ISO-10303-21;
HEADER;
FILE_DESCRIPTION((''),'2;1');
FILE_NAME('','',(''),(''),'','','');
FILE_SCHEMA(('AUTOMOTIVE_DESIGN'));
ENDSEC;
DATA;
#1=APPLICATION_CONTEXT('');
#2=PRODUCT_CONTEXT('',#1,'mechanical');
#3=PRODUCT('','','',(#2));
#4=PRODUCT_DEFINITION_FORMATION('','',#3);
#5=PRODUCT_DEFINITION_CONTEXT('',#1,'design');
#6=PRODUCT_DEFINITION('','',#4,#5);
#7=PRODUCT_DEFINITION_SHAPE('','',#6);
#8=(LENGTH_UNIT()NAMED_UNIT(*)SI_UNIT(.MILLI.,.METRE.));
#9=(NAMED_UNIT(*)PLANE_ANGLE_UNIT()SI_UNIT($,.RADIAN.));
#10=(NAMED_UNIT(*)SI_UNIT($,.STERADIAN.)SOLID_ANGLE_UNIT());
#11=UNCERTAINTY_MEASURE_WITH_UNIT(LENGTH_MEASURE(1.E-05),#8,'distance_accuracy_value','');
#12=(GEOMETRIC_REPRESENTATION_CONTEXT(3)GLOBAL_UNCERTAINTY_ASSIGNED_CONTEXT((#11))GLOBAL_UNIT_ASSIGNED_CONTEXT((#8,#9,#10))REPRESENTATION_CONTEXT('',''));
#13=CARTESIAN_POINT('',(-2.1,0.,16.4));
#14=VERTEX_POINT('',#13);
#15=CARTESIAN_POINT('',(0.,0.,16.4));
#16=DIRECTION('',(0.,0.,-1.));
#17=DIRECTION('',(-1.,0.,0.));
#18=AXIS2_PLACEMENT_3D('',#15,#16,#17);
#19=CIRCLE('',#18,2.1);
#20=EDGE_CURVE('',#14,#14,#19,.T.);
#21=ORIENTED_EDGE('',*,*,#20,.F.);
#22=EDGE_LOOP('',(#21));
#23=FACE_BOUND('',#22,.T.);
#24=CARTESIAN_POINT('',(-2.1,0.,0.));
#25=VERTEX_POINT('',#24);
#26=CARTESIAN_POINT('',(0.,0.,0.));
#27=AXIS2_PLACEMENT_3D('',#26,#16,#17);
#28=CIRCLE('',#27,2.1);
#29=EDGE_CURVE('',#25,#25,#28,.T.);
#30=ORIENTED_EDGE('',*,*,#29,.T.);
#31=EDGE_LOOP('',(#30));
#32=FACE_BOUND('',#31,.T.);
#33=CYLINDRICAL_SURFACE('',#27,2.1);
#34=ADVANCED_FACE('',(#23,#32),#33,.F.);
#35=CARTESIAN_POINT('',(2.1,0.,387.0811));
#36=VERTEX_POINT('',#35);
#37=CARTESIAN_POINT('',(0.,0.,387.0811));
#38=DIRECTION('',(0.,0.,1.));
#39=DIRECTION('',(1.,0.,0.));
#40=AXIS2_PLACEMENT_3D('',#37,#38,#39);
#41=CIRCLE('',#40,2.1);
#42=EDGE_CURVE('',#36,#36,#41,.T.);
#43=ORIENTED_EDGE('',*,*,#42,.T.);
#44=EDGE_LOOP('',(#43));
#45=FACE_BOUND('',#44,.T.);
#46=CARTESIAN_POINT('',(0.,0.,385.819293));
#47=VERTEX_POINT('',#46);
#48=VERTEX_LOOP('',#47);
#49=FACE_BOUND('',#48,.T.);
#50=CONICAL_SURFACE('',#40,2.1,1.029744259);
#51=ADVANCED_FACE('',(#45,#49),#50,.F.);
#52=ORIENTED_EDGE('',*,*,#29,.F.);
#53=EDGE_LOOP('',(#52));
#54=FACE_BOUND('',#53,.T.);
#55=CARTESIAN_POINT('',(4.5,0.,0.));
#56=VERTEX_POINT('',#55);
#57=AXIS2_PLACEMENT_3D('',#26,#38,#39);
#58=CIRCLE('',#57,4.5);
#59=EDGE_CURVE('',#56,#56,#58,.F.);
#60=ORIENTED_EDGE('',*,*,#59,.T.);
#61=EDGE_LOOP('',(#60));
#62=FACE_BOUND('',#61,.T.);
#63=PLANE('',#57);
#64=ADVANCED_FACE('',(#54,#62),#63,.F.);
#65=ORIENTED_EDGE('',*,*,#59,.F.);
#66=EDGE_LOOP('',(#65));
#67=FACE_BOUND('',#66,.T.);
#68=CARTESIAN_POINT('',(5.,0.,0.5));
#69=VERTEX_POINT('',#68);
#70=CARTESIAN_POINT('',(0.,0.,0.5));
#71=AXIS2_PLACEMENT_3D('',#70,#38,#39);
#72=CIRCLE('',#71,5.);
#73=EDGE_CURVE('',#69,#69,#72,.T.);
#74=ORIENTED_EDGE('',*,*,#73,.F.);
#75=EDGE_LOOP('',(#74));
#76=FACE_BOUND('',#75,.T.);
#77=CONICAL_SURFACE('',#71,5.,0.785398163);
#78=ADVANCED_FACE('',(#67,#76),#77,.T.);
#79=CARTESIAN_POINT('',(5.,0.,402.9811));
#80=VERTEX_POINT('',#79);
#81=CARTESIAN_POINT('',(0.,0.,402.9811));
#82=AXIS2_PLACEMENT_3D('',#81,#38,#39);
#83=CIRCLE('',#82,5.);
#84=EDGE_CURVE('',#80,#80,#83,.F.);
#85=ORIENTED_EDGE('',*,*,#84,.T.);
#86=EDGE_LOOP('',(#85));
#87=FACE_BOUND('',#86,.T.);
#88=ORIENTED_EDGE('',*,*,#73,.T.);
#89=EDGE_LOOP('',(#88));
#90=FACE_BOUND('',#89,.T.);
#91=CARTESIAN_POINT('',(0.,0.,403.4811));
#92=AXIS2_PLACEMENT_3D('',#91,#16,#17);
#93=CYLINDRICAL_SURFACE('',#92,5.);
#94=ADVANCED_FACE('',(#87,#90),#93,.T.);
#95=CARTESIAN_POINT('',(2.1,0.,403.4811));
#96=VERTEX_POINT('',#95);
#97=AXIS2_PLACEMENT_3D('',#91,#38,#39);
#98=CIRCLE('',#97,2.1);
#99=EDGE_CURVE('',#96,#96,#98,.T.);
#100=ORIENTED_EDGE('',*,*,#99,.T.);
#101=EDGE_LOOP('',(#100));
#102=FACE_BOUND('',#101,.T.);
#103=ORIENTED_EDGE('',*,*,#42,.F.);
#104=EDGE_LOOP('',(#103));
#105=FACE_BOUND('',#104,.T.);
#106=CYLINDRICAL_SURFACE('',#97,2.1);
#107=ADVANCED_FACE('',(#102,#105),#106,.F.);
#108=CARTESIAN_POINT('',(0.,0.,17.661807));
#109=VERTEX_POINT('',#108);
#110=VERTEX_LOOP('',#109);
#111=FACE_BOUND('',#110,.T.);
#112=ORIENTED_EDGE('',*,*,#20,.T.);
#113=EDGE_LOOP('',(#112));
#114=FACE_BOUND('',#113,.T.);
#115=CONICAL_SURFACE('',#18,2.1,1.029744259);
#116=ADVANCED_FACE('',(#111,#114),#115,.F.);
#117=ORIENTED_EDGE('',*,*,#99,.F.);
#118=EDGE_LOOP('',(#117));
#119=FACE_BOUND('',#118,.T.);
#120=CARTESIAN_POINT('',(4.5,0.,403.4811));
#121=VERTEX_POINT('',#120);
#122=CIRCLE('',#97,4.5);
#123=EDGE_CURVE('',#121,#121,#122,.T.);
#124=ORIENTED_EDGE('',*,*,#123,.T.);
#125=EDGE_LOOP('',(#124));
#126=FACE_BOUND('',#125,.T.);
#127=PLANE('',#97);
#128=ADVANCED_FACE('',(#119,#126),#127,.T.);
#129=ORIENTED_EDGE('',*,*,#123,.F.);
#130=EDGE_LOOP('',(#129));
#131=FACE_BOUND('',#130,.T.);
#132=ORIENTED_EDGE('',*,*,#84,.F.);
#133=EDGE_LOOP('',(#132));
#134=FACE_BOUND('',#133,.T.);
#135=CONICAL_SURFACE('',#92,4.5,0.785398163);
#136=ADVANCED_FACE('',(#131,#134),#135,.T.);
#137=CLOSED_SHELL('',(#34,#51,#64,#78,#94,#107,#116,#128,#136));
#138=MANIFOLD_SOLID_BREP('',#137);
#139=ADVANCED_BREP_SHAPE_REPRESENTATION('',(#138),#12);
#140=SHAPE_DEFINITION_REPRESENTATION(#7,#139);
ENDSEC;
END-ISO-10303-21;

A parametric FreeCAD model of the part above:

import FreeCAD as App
import Part
import Sketcher
Q = App.Units.Quantity


def edges_at(feature, points):
    """Names of the edges that pass closest to the given points."""
    edges = feature.Shape.Edges
    near = lambda p: min(range(len(edges)), key=lambda i: edges[i].distToShape(Part.Vertex(*p))[0])
    return sorted({f"Edge{near(p) + 1}" for p in points})

doc = App.newDocument("Part")
body = doc.addObject("PartDesign::Body", "Body")

# Sketch on XY plane
sketch1 = body.newObject("Sketcher::SketchObject", "Sketch")
sketch1.AttachmentSupport = (doc.getObject("XY_Plane"), [""])
sketch1.MapMode = "FlatFace"
sketch1.addGeometry(Part.Circle(App.Vector(0, 0, 0), App.Vector(0, 0, 1), 5), False)
sketch1.addConstraint([
    Sketcher.Constraint("Coincident", 0, 3, -1, 1),
    Sketcher.Constraint("Diameter", 0, Q("10 mm")),
])
pad1 = body.newObject("PartDesign::Pad", "Pad")
pad1.Profile = sketch1
pad1.Length = 403.4811
doc.recompute()

chamfer = body.newObject("PartDesign::Chamfer", "Chamfer")
chamfer.Base = (pad1, edges_at(pad1, [(-5, 0, 0), (-5, 0, 403.481)]))
chamfer.Size = 0.5

# Sketch on XY plane
sketch2 = body.newObject("Sketcher::SketchObject", "Sketch001")
sketch2.AttachmentSupport = (doc.getObject("XY_Plane"), [""])
sketch2.MapMode = "FlatFace"
sketch2.AttachmentOffset = App.Placement(App.Vector(0, 0, 403.4811), App.Rotation())
sketch2.addGeometry(Part.Circle(App.Vector(0, 0, 0), App.Vector(0, 0, 1), 2.1), False)
sketch2.addConstraint([
    Sketcher.Constraint("Coincident", 0, 3, -1, 1),
    Sketcher.Constraint("Diameter", 0, Q("4.2 mm")),
])
doc.recompute()
hole = body.newObject("PartDesign::Hole", "Hole")
hole.Profile = sketch2
hole.ThreadType = "None"
hole.Diameter = 4.2
hole.DepthType = "Dimension"
hole.Depth = 16.4
hole.DrillPoint = "Angled"
hole.DrillPointAngle = 118

# Sketch on XY plane
sketch3 = body.newObject("Sketcher::SketchObject", "Sketch002")
sketch3.AttachmentSupport = (doc.getObject("XY_Plane"), [""])
sketch3.MapMode = "FlatFace"
sketch3.addGeometry(Part.Circle(App.Vector(0, 0, 0), App.Vector(0, 0, 1), 2.1), False)
sketch3.addConstraint([
    Sketcher.Constraint("Coincident", 0, 3, -1, 1),
    Sketcher.Constraint("Diameter", 0, Q("4.2 mm")),
])
doc.recompute()
hole2 = body.newObject("PartDesign::Hole", "Hole001")
hole2.Profile = sketch3
hole2.ThreadType = "None"
hole2.Diameter = 4.2
hole2.DepthType = "Dimension"
hole2.Depth = 16.4
hole2.DrillPoint = "Angled"
hole2.DrillPointAngle = 118
hole2.Reversed = True

doc.recompute()
